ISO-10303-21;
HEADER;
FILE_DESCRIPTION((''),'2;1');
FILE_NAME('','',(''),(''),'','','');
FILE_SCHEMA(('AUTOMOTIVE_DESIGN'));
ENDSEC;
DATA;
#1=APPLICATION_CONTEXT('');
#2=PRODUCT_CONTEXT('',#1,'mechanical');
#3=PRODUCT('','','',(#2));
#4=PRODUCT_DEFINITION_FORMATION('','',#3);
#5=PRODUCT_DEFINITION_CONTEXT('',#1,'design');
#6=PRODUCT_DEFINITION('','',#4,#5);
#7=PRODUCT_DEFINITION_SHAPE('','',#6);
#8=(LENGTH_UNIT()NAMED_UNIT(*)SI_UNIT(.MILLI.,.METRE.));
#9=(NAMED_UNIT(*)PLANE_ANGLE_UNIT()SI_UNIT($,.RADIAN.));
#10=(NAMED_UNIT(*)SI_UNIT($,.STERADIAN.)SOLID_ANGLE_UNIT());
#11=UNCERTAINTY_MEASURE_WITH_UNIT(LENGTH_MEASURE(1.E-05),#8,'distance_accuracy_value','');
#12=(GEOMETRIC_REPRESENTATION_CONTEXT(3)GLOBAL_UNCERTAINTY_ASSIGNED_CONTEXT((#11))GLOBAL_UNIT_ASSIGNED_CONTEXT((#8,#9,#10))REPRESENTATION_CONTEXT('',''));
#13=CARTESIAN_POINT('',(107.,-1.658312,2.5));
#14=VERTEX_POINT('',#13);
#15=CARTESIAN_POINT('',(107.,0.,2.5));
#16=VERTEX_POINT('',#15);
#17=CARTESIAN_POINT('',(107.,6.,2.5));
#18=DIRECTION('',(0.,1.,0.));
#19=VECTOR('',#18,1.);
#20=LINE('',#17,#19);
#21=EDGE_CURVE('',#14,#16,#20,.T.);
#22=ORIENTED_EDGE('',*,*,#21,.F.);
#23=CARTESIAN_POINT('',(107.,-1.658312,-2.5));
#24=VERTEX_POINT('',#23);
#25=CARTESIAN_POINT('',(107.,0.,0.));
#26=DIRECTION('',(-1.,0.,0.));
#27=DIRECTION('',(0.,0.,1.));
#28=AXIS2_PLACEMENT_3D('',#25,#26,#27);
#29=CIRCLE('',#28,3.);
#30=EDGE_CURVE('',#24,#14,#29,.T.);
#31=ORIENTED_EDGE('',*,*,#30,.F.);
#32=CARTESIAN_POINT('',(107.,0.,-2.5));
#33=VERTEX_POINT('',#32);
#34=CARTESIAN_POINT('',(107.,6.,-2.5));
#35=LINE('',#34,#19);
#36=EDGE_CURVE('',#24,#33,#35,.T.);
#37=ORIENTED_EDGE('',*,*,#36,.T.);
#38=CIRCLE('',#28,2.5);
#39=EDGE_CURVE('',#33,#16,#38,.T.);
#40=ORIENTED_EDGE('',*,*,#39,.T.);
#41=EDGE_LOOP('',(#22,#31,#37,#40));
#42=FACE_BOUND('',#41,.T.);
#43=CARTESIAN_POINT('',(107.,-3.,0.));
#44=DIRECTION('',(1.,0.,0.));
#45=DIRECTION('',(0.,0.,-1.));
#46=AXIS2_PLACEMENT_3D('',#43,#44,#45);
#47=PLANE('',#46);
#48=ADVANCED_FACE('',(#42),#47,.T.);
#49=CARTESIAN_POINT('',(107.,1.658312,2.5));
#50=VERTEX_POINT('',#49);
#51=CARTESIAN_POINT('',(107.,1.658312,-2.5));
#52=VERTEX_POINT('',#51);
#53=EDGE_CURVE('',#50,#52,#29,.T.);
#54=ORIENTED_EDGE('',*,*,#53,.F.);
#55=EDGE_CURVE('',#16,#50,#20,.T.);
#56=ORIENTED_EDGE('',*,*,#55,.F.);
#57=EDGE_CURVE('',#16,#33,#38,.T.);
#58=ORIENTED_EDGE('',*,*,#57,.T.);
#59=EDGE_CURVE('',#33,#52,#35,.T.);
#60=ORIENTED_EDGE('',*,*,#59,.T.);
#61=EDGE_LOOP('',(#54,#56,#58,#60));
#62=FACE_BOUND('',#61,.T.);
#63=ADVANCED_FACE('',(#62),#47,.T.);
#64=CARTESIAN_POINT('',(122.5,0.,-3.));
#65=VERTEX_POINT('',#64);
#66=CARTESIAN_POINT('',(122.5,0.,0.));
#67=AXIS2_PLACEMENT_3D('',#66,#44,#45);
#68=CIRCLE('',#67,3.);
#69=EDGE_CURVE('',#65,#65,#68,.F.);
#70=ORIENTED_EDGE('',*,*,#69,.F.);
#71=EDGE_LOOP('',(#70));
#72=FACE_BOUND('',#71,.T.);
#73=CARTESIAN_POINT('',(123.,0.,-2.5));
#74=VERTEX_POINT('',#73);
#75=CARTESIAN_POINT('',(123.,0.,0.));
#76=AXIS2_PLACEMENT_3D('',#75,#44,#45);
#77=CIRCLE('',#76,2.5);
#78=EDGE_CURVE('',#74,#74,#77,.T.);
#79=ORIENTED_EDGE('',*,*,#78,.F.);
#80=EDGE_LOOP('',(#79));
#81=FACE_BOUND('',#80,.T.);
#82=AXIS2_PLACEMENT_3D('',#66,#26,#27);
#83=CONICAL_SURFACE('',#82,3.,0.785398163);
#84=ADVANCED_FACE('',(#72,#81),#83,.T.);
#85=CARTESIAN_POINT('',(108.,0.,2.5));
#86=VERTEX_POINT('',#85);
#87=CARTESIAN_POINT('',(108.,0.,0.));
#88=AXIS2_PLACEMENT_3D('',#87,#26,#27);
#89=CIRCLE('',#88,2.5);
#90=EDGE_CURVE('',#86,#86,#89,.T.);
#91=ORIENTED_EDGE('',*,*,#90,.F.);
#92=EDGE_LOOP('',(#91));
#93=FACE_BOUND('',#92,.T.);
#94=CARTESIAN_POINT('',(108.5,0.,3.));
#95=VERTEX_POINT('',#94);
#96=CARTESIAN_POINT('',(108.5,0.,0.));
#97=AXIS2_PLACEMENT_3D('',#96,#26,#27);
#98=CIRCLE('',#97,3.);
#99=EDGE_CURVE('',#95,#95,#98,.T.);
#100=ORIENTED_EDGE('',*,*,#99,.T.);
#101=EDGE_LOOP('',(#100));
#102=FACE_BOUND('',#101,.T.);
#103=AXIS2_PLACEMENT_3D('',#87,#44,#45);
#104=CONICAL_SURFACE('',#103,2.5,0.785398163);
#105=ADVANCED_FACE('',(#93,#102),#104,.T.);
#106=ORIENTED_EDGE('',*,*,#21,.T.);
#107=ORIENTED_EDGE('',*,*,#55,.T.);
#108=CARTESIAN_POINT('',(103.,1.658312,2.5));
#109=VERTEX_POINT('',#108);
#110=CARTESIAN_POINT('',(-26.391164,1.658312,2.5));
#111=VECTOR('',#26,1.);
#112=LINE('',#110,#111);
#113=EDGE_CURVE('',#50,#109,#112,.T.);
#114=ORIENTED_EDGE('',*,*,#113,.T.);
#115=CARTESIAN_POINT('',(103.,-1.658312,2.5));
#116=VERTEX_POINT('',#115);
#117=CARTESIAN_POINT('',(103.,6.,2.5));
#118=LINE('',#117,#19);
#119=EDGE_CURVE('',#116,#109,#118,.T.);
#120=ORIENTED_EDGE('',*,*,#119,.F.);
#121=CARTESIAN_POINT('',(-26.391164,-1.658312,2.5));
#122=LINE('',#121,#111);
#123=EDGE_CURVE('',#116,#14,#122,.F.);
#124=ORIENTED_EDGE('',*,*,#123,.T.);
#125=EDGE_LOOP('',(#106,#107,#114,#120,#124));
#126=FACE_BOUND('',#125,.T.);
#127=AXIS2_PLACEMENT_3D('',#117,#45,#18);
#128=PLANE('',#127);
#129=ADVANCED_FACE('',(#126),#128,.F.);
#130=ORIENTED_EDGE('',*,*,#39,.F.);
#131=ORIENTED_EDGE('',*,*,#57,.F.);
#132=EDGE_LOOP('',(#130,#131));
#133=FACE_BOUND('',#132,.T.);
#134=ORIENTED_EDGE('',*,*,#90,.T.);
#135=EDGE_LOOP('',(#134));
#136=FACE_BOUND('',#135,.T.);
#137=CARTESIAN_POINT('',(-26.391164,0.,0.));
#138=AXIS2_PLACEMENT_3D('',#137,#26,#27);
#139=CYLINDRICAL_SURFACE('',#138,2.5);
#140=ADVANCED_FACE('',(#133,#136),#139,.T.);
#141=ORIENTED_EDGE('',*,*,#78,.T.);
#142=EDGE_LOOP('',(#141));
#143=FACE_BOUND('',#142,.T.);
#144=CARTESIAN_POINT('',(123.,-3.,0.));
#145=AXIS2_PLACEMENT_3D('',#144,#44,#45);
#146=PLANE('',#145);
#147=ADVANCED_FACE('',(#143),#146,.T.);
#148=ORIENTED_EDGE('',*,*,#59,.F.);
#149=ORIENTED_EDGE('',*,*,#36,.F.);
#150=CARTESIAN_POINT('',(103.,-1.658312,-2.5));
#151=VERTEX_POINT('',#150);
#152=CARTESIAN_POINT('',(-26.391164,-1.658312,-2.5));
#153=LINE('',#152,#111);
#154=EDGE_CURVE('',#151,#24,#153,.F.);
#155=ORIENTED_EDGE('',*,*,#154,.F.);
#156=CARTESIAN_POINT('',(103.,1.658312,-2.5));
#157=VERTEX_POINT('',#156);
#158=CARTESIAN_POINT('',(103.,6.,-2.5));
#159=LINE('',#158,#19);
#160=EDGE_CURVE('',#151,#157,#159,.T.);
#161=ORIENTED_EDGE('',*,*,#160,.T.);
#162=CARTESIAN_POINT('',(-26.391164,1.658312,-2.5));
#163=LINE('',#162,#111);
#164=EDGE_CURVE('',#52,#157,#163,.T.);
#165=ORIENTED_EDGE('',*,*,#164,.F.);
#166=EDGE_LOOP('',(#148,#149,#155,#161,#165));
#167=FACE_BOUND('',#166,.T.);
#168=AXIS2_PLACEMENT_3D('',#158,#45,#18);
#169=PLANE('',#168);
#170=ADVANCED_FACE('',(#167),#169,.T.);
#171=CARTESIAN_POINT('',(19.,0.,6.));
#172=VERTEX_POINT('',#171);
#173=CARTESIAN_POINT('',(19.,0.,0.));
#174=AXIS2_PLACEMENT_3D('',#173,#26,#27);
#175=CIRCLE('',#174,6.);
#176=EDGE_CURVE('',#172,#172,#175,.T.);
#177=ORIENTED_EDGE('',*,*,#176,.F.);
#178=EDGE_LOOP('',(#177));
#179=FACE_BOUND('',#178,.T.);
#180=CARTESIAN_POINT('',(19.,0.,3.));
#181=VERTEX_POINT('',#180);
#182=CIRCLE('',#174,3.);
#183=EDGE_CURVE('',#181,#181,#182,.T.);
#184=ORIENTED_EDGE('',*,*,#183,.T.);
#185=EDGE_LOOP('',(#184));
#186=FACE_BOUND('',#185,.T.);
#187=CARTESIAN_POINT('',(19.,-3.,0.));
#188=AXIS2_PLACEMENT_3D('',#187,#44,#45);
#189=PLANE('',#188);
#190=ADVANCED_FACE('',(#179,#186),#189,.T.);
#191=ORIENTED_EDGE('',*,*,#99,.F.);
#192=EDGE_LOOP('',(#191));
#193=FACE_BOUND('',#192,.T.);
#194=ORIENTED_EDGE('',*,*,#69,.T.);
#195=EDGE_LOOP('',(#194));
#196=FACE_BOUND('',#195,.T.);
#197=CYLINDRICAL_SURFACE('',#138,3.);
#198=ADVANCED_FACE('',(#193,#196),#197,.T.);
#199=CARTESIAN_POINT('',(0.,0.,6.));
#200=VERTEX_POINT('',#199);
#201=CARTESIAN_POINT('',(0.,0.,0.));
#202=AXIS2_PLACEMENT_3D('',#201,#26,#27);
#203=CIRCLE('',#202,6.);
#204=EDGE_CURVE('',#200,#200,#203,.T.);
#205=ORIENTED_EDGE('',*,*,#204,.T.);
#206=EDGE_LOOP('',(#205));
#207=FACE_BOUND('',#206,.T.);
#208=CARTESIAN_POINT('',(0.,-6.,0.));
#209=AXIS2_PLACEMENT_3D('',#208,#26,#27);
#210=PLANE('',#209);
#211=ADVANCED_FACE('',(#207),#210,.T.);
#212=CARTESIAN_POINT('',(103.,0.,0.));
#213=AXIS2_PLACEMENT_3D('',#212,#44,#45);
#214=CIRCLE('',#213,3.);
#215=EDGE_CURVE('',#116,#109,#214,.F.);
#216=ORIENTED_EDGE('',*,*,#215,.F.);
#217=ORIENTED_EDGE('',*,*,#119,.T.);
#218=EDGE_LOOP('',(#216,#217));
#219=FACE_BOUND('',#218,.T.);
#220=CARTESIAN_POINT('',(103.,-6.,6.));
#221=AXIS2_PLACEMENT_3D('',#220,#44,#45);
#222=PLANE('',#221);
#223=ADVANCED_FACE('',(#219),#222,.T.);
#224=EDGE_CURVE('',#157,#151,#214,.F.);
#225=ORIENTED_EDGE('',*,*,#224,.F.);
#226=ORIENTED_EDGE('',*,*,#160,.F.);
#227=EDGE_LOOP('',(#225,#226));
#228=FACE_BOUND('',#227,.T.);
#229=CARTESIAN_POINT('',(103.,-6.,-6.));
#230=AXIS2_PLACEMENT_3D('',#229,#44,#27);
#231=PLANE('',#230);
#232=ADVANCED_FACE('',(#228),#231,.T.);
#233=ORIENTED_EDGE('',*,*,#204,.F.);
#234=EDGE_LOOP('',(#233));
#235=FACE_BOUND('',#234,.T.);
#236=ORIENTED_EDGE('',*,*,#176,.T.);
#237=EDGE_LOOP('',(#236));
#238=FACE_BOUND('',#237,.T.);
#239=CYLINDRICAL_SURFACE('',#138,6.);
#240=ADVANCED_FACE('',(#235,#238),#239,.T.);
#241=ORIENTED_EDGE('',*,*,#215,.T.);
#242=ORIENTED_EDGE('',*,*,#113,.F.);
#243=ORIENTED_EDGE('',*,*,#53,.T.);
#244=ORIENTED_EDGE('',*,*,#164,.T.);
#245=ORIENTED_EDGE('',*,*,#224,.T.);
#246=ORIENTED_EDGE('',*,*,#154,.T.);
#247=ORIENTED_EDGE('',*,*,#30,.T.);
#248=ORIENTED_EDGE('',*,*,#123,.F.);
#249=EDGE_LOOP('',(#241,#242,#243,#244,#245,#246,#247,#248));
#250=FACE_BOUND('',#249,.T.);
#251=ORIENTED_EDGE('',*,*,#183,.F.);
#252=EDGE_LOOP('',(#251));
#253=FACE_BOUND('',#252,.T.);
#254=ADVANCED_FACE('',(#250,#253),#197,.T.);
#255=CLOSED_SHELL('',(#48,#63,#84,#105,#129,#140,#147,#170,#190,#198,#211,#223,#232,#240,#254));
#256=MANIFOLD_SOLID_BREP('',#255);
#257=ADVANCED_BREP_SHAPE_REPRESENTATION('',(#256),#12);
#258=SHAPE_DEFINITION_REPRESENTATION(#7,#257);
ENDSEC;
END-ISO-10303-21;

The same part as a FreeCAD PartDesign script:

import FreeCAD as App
import Part
import Sketcher

V = App.Vector
Q = App.Units.Quantity


def edges_at(feature, points):
    """Names of the edges that pass closest to the given points."""
    edges = feature.Shape.Edges
    near = lambda p: min(range(len(edges)), key=lambda i: edges[i].distToShape(Part.Vertex(*p))[0])
    return sorted({f"Edge{near(p) + 1}" for p in points})

doc = App.newDocument("Part")
body = doc.addObject("PartDesign::Body", "Body")

sketch1 = doc.addObject("Sketcher::SketchObject", "Sketch")
body.addObject(sketch1)
sketch1.AttachmentSupport = (doc.XY_Plane, [""])
sketch1.MapMode = "FlatFace"
sketch1.addGeometry(Part.LineSegment(V(0, 0, 0), V(0, -6, 0)), False)
sketch1.addGeometry(Part.LineSegment(V(0, -6, 0), V(19, -6, 0)), False)
sketch1.addGeometry(Part.LineSegment(V(19, -6, 0), V(19, -3, 0)), False)
sketch1.addGeometry(Part.LineSegment(V(19, -3, 0), V(107, -3, 0)), False)
sketch1.addGeometry(Part.LineSegment(V(107, -3, 0), V(107, -2.5, 0)), False)
sketch1.addGeometry(Part.LineSegment(V(107, -2.5, 0), V(108, -2.5, 0)), False)
sketch1.addGeometry(Part.LineSegment(V(108, -2.5, 0), V(108.5, -3, 0)), False)
sketch1.addGeometry(Part.LineSegment(V(108.5, -3, 0), V(123, -3, 0)), False)
sketch1.addGeometry(Part.LineSegment(V(123, -3, 0), V(123, 0, 0)), False)
sketch1.addGeometry(Part.LineSegment(V(123, 0, 0), V(0, 0, 0)), False)
sketch1.addConstraint(Sketcher.Constraint("Coincident", 0, 2, 1, 1))
sketch1.addConstraint(Sketcher.Constraint("Coincident", 1, 2, 2, 1))
sketch1.addConstraint(Sketcher.Constraint("Coincident", 2, 2, 3, 1))
sketch1.addConstraint(Sketcher.Constraint("Coincident", 3, 2, 4, 1))
sketch1.addConstraint(Sketcher.Constraint("Coincident", 4, 2, 5, 1))
sketch1.addConstraint(Sketcher.Constraint("Coincident", 5, 2, 6, 1))
sketch1.addConstraint(Sketcher.Constraint("Coincident", 6, 2, 7, 1))
sketch1.addConstraint(Sketcher.Constraint("Coincident", 7, 2, 8, 1))
sketch1.addConstraint(Sketcher.Constraint("Coincident", 8, 2, 9, 1))
sketch1.addConstraint(Sketcher.Constraint("Coincident", 9, 2, 0, 1))
sketch1.addConstraint(Sketcher.Constraint("Vertical", 0))
sketch1.addConstraint(Sketcher.Constraint("Horizontal", 1))
sketch1.addConstraint(Sketcher.Constraint("Vertical", 2))
sketch1.addConstraint(Sketcher.Constraint("Horizontal", 3))
sketch1.addConstraint(Sketcher.Constraint("Vertical", 4))
sketch1.addConstraint(Sketcher.Constraint("Horizontal", 5))
sketch1.addConstraint(Sketcher.Constraint("Horizontal", 7))
sketch1.addConstraint(Sketcher.Constraint("Vertical", 8))
sketch1.addConstraint(Sketcher.Constraint("Horizontal", 9))
sketch1.addConstraint(Sketcher.Constraint("Coincident", 9, 2, -1, 1))
sketch1.addConstraint(Sketcher.Constraint("Horizontal", 3, 2, 6, 2))
sketch1.addConstraint(Sketcher.Constraint("Equal", 2, 8))
sketch1.addConstraint(Sketcher.Constraint("DistanceX", 1, 1, 1, 2, 19.0))
sketch1.addConstraint(Sketcher.Constraint("DistanceX", 3, 1, 3, 2, 88.0))
sketch1.addConstraint(Sketcher.Constraint("DistanceX", 5, 1, 5, 2, 1.0))
sketch1.addConstraint(Sketcher.Constraint("DistanceX", 9, 2, 9, 1, 123.0))
sketch1.addConstraint(Sketcher.Constraint("DistanceY", 0, 2, 0, 1, 6.0))
sketch1.addConstraint(Sketcher.Constraint("Angle", 6, Q("-45 deg")))
sketch1.addConstraint(Sketcher.Constraint("DistanceX", 7, 1, 7, 2, 14.5))
revolution = doc.addObject("PartDesign::Revolution", "Revolution")
body.addObject(revolution)
revolution.Profile = sketch1
revolution.ReferenceAxis = (sketch1, ["H_Axis"])
revolution.Angle = 360
doc.recompute()

chamfer = doc.addObject("PartDesign::Chamfer", "Chamfer")
body.addObject(chamfer)
chamfer.Base = (revolution, edges_at(revolution, [(123, 3, 0)]))
chamfer.Size = 0.5

sketch2 = doc.addObject("Sketcher::SketchObject", "Sketch001")
body.addObject(sketch2)
sketch2.AttachmentSupport = (doc.YZ_Plane, [""])
sketch2.MapMode = "FlatFace"
sketch2.AttachmentOffset = App.Placement(V(0, 0, 107), App.Rotation())
sketch2.addGeometry(Part.LineSegment(V(6, 6, 0), V(-6, 6, 0)), False)
sketch2.addGeometry(Part.LineSegment(V(-6, 6, 0), V(-6, 2.5, 0)), False)
sketch2.addGeometry(Part.LineSegment(V(-6, 2.5, 0), V(6, 2.5, 0)), False)
sketch2.addGeometry(Part.LineSegment(V(6, 2.5, 0), V(6, 6, 0)), False)
sketch2.addConstraint(Sketcher.Constraint("Coincident", 0, 2, 1, 1))
sketch2.addConstraint(Sketcher.Constraint("Coincident", 1, 2, 2, 1))
sketch2.addConstraint(Sketcher.Constraint("Coincident", 2, 2, 3, 1))
sketch2.addConstraint(Sketcher.Constraint("Coincident", 3, 2, 0, 1))
sketch2.addConstraint(Sketcher.Constraint("Horizontal", 0))
sketch2.addConstraint(Sketcher.Constraint("Vertical", 1))
sketch2.addConstraint(Sketcher.Constraint("Horizontal", 2))
sketch2.addConstraint(Sketcher.Constraint("Vertical", 3))
sketch2.addConstraint(Sketcher.Constraint("DistanceX", 0, 2, 0, 1, 12.0))
sketch2.addConstraint(Sketcher.Constraint("DistanceY", 1, 2, 1, 1, 3.5))
sketch2.addConstraint(Sketcher.Constraint("DistanceX", 0, 2, -1, 1, 6.0))
sketch2.addConstraint(Sketcher.Constraint("DistanceY", -1, 1, 0, 2, 6.0))
pocket1 = doc.addObject("PartDesign::Pocket", "Pocket")
body.addObject(pocket1)
pocket1.Profile = sketch2
pocket1.Length = 4
doc.recompute()

mirrored = doc.addObject("PartDesign::Mirrored", "Mirrored")
body.addObject(mirrored)
mirrored.Originals = [pocket1]
mirrored.MirrorPlane = (doc.XY_Plane, [""])
body.Tip = mirrored

doc.recompute()
